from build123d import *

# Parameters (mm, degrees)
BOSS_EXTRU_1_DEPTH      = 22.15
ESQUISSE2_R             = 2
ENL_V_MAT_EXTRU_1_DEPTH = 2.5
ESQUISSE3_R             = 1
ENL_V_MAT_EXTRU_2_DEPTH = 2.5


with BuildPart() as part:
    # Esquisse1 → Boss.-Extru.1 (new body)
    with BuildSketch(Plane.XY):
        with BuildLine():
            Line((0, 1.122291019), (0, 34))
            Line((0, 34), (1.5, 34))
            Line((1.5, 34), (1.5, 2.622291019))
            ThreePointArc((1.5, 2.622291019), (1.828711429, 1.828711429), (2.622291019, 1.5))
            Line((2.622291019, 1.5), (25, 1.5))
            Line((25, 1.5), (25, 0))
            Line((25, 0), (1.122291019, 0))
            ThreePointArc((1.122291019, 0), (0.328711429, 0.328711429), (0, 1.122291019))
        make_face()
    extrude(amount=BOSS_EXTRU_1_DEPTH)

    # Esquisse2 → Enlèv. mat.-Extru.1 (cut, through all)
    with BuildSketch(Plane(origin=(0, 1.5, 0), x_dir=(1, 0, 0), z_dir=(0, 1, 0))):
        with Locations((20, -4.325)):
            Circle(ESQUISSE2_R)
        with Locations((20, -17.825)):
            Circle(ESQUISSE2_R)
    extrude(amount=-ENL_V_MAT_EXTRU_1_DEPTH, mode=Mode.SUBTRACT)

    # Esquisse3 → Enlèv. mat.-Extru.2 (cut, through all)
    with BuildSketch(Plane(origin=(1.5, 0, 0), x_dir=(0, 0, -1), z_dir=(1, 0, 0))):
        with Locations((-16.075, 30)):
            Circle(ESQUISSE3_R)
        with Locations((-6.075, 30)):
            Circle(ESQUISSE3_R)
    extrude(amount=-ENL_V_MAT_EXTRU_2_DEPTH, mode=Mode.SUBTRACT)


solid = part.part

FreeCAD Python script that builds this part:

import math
import FreeCAD as App
import Part
import Sketcher
from FreeCAD import Vector

doc = App.newDocument("Part")
params = doc.addObject("Spreadsheet::Sheet", "Params")
for row, (alias, value) in enumerate([
    ("sketch1_width", "1.5 mm"),
    ("pad1_length", "22.15 mm"),
    ("sketch2_diameter", "4 mm"),
    ("sketch3_diameter", "2 mm"),
], start=1):
    params.set(f"A{row}", alias)
    params.set(f"B{row}", "=" + value)
    params.setAlias(f"B{row}", alias)

body = doc.addObject("PartDesign::Body", "Body")

# Sketch on XY plane
sketch1 = body.newObject("Sketcher::SketchObject", "Sketch")
sketch1.AttachmentSupport = (doc.getObject("XY_Plane"), [""])
sketch1.MapMode = "FlatFace"
sketch1.addGeometry(Part.LineSegment(Vector(0, 34, 0), Vector(0, 1.1, 0)), False)
sketch1.addGeometry(Part.ArcOfCircle(Part.Circle(Vector(1.1, 1.1, 0), Vector(0, 0, 1), 1.1), math.radians(180), math.radians(270)), False)
sketch1.addGeometry(Part.LineSegment(Vector(1.1, 0, 0), Vector(25, 0, 0)), False)
sketch1.addGeometry(Part.LineSegment(Vector(25, 0, 0), Vector(25, 1.5, 0)), False)
sketch1.addGeometry(Part.LineSegment(Vector(25, 1.5, 0), Vector(2.6, 1.5, 0)), False)
sketch1.addGeometry(Part.ArcOfCircle(Part.Circle(Vector(2.6, 2.6, 0), Vector(0, 0, 1), 1.1), math.radians(180), math.radians(270)), False)
sketch1.addGeometry(Part.LineSegment(Vector(1.5, 2.6, 0), Vector(1.5, 34, 0)), False)
sketch1.addGeometry(Part.LineSegment(Vector(1.5, 34, 0), Vector(0, 34, 0)), False)
sketch1.addConstraint(Sketcher.Constraint("Tangent", 0, 2, 1, 1))
sketch1.addConstraint(Sketcher.Constraint("Tangent", 1, 2, 2, 1))
sketch1.addConstraint(Sketcher.Constraint("Coincident", 2, 2, 3, 1))
sketch1.addConstraint(Sketcher.Constraint("Coincident", 3, 2, 4, 1))
sketch1.addConstraint(Sketcher.Constraint("Tangent", 4, 2, 5, 2))
sketch1.addConstraint(Sketcher.Constraint("Tangent", 5, 1, 6, 1))
sketch1.addConstraint(Sketcher.Constraint("Coincident", 6, 2, 7, 1))
sketch1.addConstraint(Sketcher.Constraint("Coincident", 7, 2, 0, 1))
sketch1.addConstraint(Sketcher.Constraint("Vertical", 0))
sketch1.addConstraint(Sketcher.Constraint("Horizontal", 2))
sketch1.addConstraint(Sketcher.Constraint("Vertical", 3))
sketch1.addConstraint(Sketcher.Constraint("Horizontal", 4))
sketch1.addConstraint(Sketcher.Constraint("Vertical", 6))
sketch1.addConstraint(Sketcher.Constraint("Horizontal", 7))
sketch1.addConstraint(Sketcher.Constraint("Equal", 1, 5))
sketch1.addConstraint(Sketcher.Constraint("PointOnObject", 0, 2, -2))
sketch1.addConstraint(Sketcher.Constraint("PointOnObject", 1, 2, -1))
sketch1.addConstraint(Sketcher.Constraint("Equal", 7, 3))
sketch1.addConstraint(Sketcher.Constraint("DistanceX", 7, 2, 7, 1, 1.5))
sketch1.addConstraint(Sketcher.Constraint("DistanceX", -1, 1, 2, 2, 25.0))
sketch1.addConstraint(Sketcher.Constraint("DistanceY", -1, 1, 6, 2, 34.0))
sketch1.addConstraint(Sketcher.Constraint("Radius", 1, 1.122291))
sketch1.setExpression("Constraints[18]", "Params.sketch1_width")
pad1 = body.newObject("PartDesign::Pad", "Pad")
pad1.Profile = sketch1
pad1.setExpression("Length", "Params.pad1_length")

# Sketch on XZ plane
sketch2 = body.newObject("Sketcher::SketchObject", "Sketch001")
sketch2.AttachmentSupport = (doc.getObject("XZ_Plane"), [""])
sketch2.MapMode = "FlatFace"
sketch2.AttachmentOffset = App.Placement(Vector(0, 0, -1.5), App.Rotation())
sketch2.addGeometry(Part.Circle(Vector(20, 4.3, 0), Vector(0, 0, 1), 2), False)
sketch2.addGeometry(Part.Circle(Vector(20, 17.8, 0), Vector(0, 0, 1), 2), False)
sketch2.addConstraint(Sketcher.Constraint("Equal", 0, 1))
sketch2.addConstraint(Sketcher.Constraint("Vertical", 0, 3, 1, 3))
sketch2.addConstraint(Sketcher.Constraint("Diameter", 0, 4.0))
sketch2.addConstraint(Sketcher.Constraint("DistanceX", -1, 1, 0, 3, 20.0))
sketch2.addConstraint(Sketcher.Constraint("DistanceY", 0, 3, 1, 3, 13.5))
sketch2.addConstraint(Sketcher.Constraint("DistanceY", -1, 1, 0, 3, 4.325))
sketch2.setExpression("Constraints[2]", "Params.sketch2_diameter")
pocket1 = body.newObject("PartDesign::Pocket", "Pocket")
pocket1.Profile = sketch2
pocket1.Type = "ThroughAll"
pocket1.Reversed = True

# Sketch on YZ plane
sketch3 = body.newObject("Sketcher::SketchObject", "Sketch002")
sketch3.AttachmentSupport = (doc.getObject("YZ_Plane"), [""])
sketch3.MapMode = "FlatFace"
sketch3.AttachmentOffset = App.Placement(Vector(0, 0, 1.5), App.Rotation())
sketch3.addGeometry(Part.Circle(Vector(30, 16.1, 0), Vector(0, 0, 1), 1), False)
sketch3.addGeometry(Part.Circle(Vector(30, 6.1, 0), Vector(0, 0, 1), 1), False)
sketch3.addConstraint(Sketcher.Constraint("Equal", 0, 1))
sketch3.addConstraint(Sketcher.Constraint("Vertical", 0, 3, 1, 3))
sketch3.addConstraint(Sketcher.Constraint("Diameter", 0, 2.0))
sketch3.addConstraint(Sketcher.Constraint("DistanceX", -1, 1, 0, 3, 30.0))
sketch3.addConstraint(Sketcher.Constraint("DistanceY", 1, 3, 0, 3, 10.0))
sketch3.addConstraint(Sketcher.Constraint("DistanceY", -1, 1, 0, 3, 16.075))
sketch3.setExpression("Constraints[2]", "Params.sketch3_diameter")
pocket2 = body.newObject("PartDesign::Pocket", "Pocket001")
pocket2.Profile = sketch3
pocket2.Type = "ThroughAll"

doc.recompute()
